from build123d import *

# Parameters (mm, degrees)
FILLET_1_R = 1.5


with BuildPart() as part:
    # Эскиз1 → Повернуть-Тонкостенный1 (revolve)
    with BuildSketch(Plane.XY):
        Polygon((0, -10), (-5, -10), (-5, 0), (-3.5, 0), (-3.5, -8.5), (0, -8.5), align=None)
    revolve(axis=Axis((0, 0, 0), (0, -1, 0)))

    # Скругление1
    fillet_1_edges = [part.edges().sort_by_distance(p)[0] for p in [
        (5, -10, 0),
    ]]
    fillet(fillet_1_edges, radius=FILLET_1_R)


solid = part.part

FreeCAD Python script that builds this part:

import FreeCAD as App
import Part
import Sketcher
from FreeCAD import Vector
Q = App.Units.Quantity


def edges_at(feature, points):
    """Names of the edges that pass closest to the given points."""
    edges = feature.Shape.Edges
    near = lambda p: min(range(len(edges)), key=lambda i: edges[i].distToShape(Part.Vertex(*p))[0])
    return sorted({f"Edge{near(p) + 1}" for p in points})


def add_polygon(sketch, points):
    """Adds a closed chain of lines whose ends are joined by coincident constraints."""
    first, n = sketch.GeometryCount, len(points)
    for a, b in zip(points, points[1:] + points[:1]):
        sketch.addGeometry(Part.LineSegment(App.Vector(*a, 0), App.Vector(*b, 0)), False)
    for i in range(n):
        sketch.addConstraint(Sketcher.Constraint("Coincident", first + i, 2, first + (i + 1) % n, 1))

doc = App.newDocument("Part")
body = doc.addObject("PartDesign::Body", "Body")

# Sketch on XY plane
sketch1 = body.newObject("Sketcher::SketchObject", "Sketch")
sketch1.AttachmentSupport = (doc.getObject("XY_Plane"), [""])
sketch1.MapMode = "FlatFace"
add_polygon(sketch1, [(-5, -10), (0, -10), (0, -8.5), (-3.5, -8.5), (-3.5, 0), (-5, 0)])  # lines 0-5
sketch1.addConstraint([
    Sketcher.Constraint("Horizontal", 0),
    Sketcher.Constraint("Vertical", 1),
    Sketcher.Constraint("Horizontal", 2),
    Sketcher.Constraint("Vertical", 3),
    Sketcher.Constraint("Horizontal", 4),
    Sketcher.Constraint("Vertical", 5),
    Sketcher.Constraint("PointOnObject", 0, 2, -2),
    Sketcher.Constraint("PointOnObject", 3, 2, -1),
    Sketcher.Constraint("Equal", 4, 1),
    Sketcher.Constraint("DistanceX", 0, 1, 0, 2, Q("5 mm")),
    Sketcher.Constraint("DistanceY", 5, 2, 5, 1, Q("10 mm")),
    Sketcher.Constraint("DistanceX", 2, 2, 2, 1, Q("3.5 mm")),
])
revolution = body.newObject("PartDesign::Revolution", "Revolution")
revolution.Profile = sketch1
revolution.ReferenceAxis = (sketch1, ["V_Axis"])
revolution.Angle = 360
doc.recompute()

fillet = body.newObject("PartDesign::Fillet", "Fillet")
fillet.Base = (revolution, edges_at(revolution, [(5, -10, 0)]))
fillet.Radius = 1.5

doc.recompute()
